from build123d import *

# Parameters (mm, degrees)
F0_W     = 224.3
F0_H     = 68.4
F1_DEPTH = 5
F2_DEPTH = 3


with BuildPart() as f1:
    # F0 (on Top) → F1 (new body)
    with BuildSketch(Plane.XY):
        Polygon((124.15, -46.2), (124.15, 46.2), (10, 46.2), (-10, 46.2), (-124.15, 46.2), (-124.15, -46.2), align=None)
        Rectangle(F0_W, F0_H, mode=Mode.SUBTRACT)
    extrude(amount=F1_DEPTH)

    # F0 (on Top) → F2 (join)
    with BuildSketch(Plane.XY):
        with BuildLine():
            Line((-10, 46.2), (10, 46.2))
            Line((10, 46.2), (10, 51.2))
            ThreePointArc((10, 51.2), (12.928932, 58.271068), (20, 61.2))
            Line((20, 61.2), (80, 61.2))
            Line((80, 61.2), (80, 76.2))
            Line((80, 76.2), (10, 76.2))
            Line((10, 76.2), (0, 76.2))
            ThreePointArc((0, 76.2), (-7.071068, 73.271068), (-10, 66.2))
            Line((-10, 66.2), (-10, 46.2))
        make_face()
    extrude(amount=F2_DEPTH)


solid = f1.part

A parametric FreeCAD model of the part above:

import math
import FreeCAD as App
import Part
import Sketcher

doc = App.newDocument("Part")
body = doc.addObject("PartDesign::Body", "Body")

# Sketch on XY plane
sketch1 = body.newObject("Sketcher::SketchObject", "Sketch")
sketch1.AttachmentSupport = (doc.getObject("XY_Plane"), [""])
sketch1.MapMode = "FlatFace"
sketch1.addGeometry([
    Part.LineSegment(App.Vector(124, -46, 0), App.Vector(124, 46, 0)),  # 0
    Part.LineSegment(App.Vector(124, 46, 0), App.Vector(-124, 46, 0)),  # 1
    Part.LineSegment(App.Vector(-124, 46, 0), App.Vector(-124, -46, 0)),  # 2
    Part.LineSegment(App.Vector(-124, -46, 0), App.Vector(124, -46, 0)),  # 3
    Part.LineSegment(App.Vector(112, -34, 0), App.Vector(-112, -34, 0)),  # 4
    Part.LineSegment(App.Vector(-112, -34, 0), App.Vector(-112, 34, 0)),  # 5
    Part.LineSegment(App.Vector(-112, 34, 0), App.Vector(112, 34, 0)),  # 6
    Part.LineSegment(App.Vector(112, 34, 0), App.Vector(112, -34, 0)),  # 7
], False)
sketch1.addConstraint([
    Sketcher.Constraint("Coincident", 0, 2, 1, 1),
    Sketcher.Constraint("Coincident", 1, 2, 2, 1),
    Sketcher.Constraint("Coincident", 2, 2, 3, 1),
    Sketcher.Constraint("Coincident", 3, 2, 0, 1),
    Sketcher.Constraint("Coincident", 4, 2, 5, 1),
    Sketcher.Constraint("Coincident", 5, 2, 6, 1),
    Sketcher.Constraint("Coincident", 6, 2, 7, 1),
    Sketcher.Constraint("Coincident", 7, 2, 4, 1),
    Sketcher.Constraint("Vertical", 0),
    Sketcher.Constraint("Horizontal", 1),
    Sketcher.Constraint("Vertical", 2),
    Sketcher.Constraint("Horizontal", 3),
    Sketcher.Constraint("Horizontal", 4),
    Sketcher.Constraint("Vertical", 5),
    Sketcher.Constraint("Horizontal", 6),
    Sketcher.Constraint("Vertical", 7),
    Sketcher.Constraint("Symmetric", 0, 2, 2, 2, -1, 1),
    Sketcher.Constraint("Symmetric", 4, 2, 6, 2, -1, 1),
    Sketcher.Constraint("DistanceX", 1, 2, 1, 1, 248.3),
    Sketcher.Constraint("DistanceX", 4, 2, 4, 1, 224.3),
    Sketcher.Constraint("DistanceY", 0, 1, 0, 2, 92.4),
    Sketcher.Constraint("DistanceY", 5, 1, 5, 2, 68.4),
])
pad1 = body.newObject("PartDesign::Pad", "Pad")
pad1.Profile = sketch1
pad1.Length = 5

# Sketch on XY plane
sketch2 = body.newObject("Sketcher::SketchObject", "Sketch001")
sketch2.AttachmentSupport = (doc.getObject("XY_Plane"), [""])
sketch2.MapMode = "FlatFace"
sketch2.addGeometry([
    Part.LineSegment(App.Vector(-10, 46, 0), App.Vector(10, 46, 0)),  # 0
    Part.LineSegment(App.Vector(10, 46, 0), App.Vector(10, 51, 0)),  # 1
    Part.ArcOfCircle(Part.Circle(App.Vector(20, 51, 0), App.Vector(0, 0, 1), 10), math.radians(90), math.radians(180)),  # 2
    Part.LineSegment(App.Vector(20, 61, 0), App.Vector(80, 61, 0)),  # 3
    Part.LineSegment(App.Vector(80, 61, 0), App.Vector(80, 76, 0)),  # 4
    Part.LineSegment(App.Vector(80, 76, 0), App.Vector(0, 76, 0)),  # 5
    Part.ArcOfCircle(Part.Circle(App.Vector(0, 66, 0), App.Vector(0, 0, 1), 10), math.radians(90), math.radians(180)),  # 6
    Part.LineSegment(App.Vector(-10, 66, 0), App.Vector(-10, 46, 0)),  # 7
], False)
sketch2.addConstraint([
    Sketcher.Constraint("Coincident", 0, 2, 1, 1),
    Sketcher.Constraint("Tangent", 1, 2, 2, 2),
    Sketcher.Constraint("Tangent", 2, 1, 3, 1),
    Sketcher.Constraint("Coincident", 3, 2, 4, 1),
    Sketcher.Constraint("Coincident", 4, 2, 5, 1),
    Sketcher.Constraint("Tangent", 5, 2, 6, 1),
    Sketcher.Constraint("Tangent", 6, 2, 7, 1),
    Sketcher.Constraint("Coincident", 7, 2, 0, 1),
    Sketcher.Constraint("Horizontal", 0),
    Sketcher.Constraint("Vertical", 1),
    Sketcher.Constraint("Horizontal", 3),
    Sketcher.Constraint("Vertical", 4),
    Sketcher.Constraint("Horizontal", 5),
    Sketcher.Constraint("Vertical", 7),
    Sketcher.Constraint("Equal", 2, 6),
    Sketcher.Constraint("PointOnObject", 6, 3, -2),
    Sketcher.Constraint("Equal", 0, 7),
    Sketcher.Constraint("Radius", 2, 9.999999),
    Sketcher.Constraint("DistanceX", 0, 1, 0, 2, 20.0),
    Sketcher.Constraint("DistanceX", 3, 1, 3, 2, 60.0),
    Sketcher.Constraint("DistanceY", 1, 1, 1, 2, 5.0),
    Sketcher.Constraint("DistanceY", -1, 1, 2, 3, 51.200001),
])
pad2 = body.newObject("PartDesign::Pad", "Pad001")
pad2.Profile = sketch2
pad2.Length = 3

doc.recompute()
